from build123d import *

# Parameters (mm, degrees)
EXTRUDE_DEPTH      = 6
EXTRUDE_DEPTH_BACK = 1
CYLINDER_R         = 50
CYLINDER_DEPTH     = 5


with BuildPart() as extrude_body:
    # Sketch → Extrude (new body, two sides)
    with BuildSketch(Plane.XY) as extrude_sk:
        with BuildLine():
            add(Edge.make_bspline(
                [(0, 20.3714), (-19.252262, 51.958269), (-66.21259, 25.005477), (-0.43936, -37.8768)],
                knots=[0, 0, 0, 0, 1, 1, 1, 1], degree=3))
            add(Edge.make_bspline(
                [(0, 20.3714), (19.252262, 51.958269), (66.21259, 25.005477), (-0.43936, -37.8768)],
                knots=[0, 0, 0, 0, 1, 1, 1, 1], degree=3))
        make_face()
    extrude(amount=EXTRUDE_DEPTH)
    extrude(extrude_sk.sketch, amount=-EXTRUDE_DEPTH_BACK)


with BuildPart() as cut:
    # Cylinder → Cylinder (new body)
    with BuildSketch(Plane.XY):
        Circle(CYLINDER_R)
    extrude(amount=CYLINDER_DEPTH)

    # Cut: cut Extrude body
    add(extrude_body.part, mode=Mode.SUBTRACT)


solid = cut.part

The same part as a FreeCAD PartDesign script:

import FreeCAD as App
import Part
import Sketcher

V = App.Vector

doc = App.newDocument("Part")
body = doc.addObject("PartDesign::Body", "Body")

sketch1 = body.newObject("Sketcher::SketchObject", "Sketch")
sketch1.AttachmentSupport = (doc.getObject("XY_Plane"), [""])
sketch1.MapMode = "FlatFace"
sketch1.addGeometry([
    Part.BSplineCurve([V(0, 20.3714, 0), V(-19.252262, 51.958269, 0), V(-66.21259, 25.005477, 0), V(-0.43936, -37.8768, 0)], [4, 4], [0, 1], False, 3, [1, 1, 1, 1], False),
    Part.BSplineCurve([V(0, 20.3714, 0), V(19.252262, 51.958269, 0), V(66.21259, 25.005477, 0), V(-0.43936, -37.8768, 0)], [4, 4], [0, 1], False, 3, [1, 1, 1, 1], False),
], False)
sketch1.addConstraint([
    Sketcher.Constraint("Block", 0),
    Sketcher.Constraint("Block", 1),
])
pad1 = body.newObject("PartDesign::Pad", "Pad")
pad1.Profile = sketch1
pad1.Type = "TwoLengths"
pad1.Length = 6
pad1.Length2 = 1
body2 = doc.addObject("PartDesign::Body", "Body001")

sketch2 = body2.newObject("Sketcher::SketchObject", "Sketch001")
sketch2.AttachmentSupport = (doc.getObject("XY_Plane001"), [""])
sketch2.MapMode = "FlatFace"
sketch2.addGeometry(Part.Circle(V(0, 0, 0), V(0, 0, 1), 50), False)
sketch2.addConstraint([
    Sketcher.Constraint("Coincident", 0, 3, -1, 1),
    Sketcher.Constraint("Diameter", 0, 100.0),
])
pad2 = body2.newObject("PartDesign::Pad", "Pad001")
pad2.Profile = sketch2
pad2.Length = 5
doc.recompute()

boolean = body2.newObject("PartDesign::Boolean", "Boolean")
boolean.Type = "Cut"
boolean.addObjects([body])

doc.recompute()
